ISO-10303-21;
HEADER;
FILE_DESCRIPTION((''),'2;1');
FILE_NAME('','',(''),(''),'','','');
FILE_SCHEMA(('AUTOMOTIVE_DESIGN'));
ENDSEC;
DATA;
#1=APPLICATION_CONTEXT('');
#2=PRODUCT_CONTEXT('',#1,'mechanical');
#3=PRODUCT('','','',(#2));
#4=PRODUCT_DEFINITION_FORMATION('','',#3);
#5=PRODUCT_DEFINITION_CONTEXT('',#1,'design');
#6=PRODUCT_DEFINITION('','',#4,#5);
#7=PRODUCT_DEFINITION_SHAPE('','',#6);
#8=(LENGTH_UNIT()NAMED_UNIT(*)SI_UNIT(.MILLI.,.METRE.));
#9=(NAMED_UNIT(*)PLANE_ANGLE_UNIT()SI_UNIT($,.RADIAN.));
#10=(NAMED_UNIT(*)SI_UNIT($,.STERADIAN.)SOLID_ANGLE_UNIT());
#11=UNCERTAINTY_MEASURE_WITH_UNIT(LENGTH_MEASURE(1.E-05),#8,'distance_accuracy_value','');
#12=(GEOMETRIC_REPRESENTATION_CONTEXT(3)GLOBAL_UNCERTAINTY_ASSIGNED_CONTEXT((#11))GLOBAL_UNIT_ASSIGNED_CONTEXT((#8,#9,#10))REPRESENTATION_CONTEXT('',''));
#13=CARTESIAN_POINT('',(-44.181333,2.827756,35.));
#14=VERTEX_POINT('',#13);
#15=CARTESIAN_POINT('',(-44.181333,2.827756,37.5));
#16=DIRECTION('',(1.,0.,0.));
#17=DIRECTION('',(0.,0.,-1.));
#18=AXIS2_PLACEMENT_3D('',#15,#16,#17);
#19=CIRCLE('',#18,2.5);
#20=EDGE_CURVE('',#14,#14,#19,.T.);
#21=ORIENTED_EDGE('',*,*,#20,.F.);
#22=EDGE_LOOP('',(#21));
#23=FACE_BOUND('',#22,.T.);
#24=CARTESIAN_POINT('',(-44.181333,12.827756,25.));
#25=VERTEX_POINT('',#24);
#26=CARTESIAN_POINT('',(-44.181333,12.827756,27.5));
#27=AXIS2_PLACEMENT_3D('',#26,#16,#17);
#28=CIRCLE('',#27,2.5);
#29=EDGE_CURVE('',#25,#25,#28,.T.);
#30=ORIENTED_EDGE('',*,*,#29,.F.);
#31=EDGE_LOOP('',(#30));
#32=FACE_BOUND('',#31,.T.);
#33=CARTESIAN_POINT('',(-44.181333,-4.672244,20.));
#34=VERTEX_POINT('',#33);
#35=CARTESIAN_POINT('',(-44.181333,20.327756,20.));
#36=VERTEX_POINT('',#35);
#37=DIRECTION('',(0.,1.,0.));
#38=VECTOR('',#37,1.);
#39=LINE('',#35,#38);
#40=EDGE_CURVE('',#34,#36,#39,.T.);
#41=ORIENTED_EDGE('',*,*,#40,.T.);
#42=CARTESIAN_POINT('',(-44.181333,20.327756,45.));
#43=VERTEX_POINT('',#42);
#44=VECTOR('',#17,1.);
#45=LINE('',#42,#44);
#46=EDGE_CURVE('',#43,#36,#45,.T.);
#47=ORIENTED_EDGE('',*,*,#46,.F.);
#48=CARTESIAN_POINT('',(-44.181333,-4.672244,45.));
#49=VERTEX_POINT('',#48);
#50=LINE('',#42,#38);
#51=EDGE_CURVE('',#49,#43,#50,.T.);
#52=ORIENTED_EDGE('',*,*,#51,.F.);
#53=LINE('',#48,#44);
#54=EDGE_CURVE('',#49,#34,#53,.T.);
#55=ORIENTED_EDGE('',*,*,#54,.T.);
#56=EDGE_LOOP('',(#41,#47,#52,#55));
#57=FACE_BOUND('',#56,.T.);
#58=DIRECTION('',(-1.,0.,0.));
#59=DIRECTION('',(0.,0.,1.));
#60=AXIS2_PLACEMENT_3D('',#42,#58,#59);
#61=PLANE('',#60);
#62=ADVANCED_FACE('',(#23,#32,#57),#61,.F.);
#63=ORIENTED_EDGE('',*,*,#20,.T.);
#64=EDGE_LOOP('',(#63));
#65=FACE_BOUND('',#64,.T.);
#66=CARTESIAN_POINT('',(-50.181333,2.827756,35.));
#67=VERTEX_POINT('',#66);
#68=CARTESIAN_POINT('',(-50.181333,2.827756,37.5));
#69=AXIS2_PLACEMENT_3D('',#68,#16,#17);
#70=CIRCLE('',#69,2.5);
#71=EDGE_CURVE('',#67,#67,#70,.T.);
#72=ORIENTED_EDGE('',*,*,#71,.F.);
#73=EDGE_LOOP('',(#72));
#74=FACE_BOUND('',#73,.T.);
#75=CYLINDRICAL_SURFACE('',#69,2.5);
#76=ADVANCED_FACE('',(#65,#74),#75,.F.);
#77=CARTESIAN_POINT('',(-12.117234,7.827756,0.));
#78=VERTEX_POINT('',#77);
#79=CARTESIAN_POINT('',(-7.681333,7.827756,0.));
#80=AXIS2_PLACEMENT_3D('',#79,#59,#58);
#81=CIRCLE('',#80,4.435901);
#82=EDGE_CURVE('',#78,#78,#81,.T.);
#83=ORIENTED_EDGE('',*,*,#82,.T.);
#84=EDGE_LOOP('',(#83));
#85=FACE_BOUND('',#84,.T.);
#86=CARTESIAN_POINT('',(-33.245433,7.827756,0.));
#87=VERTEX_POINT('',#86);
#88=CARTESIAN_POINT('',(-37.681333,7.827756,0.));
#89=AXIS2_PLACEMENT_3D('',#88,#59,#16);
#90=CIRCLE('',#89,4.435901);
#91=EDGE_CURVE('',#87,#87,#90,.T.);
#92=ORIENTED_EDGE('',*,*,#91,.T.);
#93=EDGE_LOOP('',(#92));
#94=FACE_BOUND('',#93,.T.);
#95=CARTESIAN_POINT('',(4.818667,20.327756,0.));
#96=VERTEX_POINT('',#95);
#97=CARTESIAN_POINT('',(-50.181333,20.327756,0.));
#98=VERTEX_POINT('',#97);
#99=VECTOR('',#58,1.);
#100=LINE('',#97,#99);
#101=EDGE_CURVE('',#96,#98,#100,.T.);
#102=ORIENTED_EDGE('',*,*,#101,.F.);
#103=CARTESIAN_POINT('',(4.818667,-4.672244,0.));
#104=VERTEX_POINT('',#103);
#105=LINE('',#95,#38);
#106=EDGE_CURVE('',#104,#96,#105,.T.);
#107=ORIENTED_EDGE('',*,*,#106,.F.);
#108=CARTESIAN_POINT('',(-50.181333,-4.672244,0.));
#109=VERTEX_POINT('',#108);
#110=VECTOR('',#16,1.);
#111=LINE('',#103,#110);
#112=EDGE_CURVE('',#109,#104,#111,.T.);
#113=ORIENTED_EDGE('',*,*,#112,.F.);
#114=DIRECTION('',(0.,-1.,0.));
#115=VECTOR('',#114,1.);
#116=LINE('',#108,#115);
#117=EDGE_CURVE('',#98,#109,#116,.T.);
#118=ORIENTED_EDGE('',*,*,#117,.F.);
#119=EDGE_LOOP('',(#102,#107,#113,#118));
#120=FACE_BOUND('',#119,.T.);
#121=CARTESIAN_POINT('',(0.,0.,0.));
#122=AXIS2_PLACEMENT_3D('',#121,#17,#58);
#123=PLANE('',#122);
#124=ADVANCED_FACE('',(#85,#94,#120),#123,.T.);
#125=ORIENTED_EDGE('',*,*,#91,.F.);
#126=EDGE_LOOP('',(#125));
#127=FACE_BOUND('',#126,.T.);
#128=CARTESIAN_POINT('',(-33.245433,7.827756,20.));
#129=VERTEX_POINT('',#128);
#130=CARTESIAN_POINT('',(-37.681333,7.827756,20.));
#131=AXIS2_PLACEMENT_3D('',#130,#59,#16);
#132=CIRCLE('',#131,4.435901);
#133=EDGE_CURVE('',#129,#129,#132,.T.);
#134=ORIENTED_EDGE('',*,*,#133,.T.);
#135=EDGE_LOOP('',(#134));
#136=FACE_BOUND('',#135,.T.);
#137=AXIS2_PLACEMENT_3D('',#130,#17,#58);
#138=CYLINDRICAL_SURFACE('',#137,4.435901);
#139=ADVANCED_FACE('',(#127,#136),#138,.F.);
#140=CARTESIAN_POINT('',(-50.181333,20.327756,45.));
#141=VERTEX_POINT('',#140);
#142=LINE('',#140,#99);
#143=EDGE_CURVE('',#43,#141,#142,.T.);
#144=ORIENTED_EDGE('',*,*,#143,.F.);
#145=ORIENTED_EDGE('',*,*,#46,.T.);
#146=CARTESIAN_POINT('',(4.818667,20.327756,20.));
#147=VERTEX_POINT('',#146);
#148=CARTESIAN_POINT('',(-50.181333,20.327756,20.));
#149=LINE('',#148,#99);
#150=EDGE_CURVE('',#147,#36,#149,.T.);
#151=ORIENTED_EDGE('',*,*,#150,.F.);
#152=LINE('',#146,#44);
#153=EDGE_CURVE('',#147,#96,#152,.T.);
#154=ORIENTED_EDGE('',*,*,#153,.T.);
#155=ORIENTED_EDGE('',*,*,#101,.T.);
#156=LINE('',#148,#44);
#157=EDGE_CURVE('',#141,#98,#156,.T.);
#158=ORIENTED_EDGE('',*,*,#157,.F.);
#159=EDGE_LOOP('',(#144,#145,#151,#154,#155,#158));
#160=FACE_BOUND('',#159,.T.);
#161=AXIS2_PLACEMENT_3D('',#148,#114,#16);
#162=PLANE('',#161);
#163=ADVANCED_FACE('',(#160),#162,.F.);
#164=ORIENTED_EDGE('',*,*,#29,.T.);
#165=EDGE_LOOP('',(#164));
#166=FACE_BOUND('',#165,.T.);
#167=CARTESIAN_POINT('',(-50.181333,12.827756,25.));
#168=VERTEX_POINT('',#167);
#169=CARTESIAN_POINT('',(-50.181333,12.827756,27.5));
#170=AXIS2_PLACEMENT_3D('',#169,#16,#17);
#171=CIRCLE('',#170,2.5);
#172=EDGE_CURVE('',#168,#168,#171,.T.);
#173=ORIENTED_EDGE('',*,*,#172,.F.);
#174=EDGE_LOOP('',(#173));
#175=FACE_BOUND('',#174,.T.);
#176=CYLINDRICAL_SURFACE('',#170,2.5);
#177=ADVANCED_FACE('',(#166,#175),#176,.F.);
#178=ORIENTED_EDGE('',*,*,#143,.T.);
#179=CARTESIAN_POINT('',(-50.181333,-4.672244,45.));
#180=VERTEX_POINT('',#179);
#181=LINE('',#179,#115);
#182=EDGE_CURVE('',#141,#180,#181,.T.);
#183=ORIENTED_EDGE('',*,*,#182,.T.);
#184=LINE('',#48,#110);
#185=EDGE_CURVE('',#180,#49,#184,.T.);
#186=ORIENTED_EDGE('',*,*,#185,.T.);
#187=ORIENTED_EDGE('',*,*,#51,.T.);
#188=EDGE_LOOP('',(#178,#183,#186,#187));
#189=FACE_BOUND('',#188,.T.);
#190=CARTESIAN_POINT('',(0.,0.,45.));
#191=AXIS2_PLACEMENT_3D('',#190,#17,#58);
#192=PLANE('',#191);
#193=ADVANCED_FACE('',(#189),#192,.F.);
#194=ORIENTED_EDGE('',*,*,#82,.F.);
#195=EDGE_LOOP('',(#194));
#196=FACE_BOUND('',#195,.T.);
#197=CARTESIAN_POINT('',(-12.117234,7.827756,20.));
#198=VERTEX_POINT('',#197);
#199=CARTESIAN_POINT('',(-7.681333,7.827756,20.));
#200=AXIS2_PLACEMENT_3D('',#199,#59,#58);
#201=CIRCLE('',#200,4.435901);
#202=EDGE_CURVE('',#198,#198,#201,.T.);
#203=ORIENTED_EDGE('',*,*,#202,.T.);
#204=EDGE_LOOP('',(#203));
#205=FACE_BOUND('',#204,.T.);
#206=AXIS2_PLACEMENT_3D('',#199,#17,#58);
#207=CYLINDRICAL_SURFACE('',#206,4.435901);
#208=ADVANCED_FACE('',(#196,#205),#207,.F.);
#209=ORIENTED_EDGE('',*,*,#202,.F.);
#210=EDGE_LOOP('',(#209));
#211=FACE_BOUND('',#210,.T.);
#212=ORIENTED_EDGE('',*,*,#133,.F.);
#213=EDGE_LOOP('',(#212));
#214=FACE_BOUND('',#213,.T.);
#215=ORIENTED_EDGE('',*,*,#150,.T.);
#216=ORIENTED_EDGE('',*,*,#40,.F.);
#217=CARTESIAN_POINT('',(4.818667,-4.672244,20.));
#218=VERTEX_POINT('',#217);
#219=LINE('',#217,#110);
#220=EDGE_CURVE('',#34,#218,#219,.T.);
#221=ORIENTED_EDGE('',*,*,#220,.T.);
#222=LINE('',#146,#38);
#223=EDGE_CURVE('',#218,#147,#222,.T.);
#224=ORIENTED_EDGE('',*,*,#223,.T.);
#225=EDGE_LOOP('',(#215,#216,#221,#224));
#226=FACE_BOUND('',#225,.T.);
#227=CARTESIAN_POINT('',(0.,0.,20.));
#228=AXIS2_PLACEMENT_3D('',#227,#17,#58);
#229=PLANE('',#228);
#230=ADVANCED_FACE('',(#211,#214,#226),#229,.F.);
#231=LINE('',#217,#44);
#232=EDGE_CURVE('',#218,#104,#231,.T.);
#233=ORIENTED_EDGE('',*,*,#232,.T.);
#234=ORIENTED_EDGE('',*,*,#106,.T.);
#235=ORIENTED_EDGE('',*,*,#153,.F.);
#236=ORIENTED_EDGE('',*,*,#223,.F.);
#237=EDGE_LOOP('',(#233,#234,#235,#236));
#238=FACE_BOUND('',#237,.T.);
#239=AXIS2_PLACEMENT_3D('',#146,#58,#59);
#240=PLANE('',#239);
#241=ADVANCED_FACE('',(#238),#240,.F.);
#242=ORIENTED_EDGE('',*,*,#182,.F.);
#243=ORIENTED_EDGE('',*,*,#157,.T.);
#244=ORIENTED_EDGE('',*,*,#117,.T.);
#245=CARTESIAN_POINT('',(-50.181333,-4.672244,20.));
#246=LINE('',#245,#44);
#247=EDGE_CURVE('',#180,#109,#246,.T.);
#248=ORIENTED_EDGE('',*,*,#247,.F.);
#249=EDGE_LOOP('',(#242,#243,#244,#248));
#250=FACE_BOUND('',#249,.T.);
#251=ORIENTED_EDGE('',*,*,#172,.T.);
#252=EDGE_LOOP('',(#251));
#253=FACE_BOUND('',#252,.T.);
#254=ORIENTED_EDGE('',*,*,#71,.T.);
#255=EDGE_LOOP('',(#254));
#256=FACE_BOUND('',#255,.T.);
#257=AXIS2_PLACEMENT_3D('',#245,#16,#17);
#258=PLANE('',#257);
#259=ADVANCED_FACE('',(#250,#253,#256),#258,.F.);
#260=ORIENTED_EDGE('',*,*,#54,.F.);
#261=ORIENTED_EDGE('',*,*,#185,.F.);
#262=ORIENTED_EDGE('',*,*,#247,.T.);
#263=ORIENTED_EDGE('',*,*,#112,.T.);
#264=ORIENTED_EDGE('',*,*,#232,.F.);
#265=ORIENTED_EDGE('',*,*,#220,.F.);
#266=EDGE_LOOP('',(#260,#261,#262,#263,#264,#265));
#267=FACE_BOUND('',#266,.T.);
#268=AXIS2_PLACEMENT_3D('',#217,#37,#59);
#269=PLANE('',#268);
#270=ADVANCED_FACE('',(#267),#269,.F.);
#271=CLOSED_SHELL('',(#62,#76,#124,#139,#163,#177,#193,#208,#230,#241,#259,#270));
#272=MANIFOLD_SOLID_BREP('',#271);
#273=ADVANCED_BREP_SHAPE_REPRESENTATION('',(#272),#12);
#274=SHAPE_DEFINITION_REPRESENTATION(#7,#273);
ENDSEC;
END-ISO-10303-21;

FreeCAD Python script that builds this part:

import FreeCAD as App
import Part
import Sketcher

doc = App.newDocument("Part")
body = doc.addObject("PartDesign::Body", "Body")

# Sketch on XY plane
sketch1 = doc.addObject("Sketcher::SketchObject", "Sketch")
body.addObject(sketch1)
sketch1.AttachmentSupport = (doc.XY_Plane, [""])
sketch1.MapMode = "FlatFace"
sketch1.addGeometry(Part.LineSegment(App.Vector(-50.2, 20.3, 0), App.Vector(-50.2, -4.7, 0)), False)
sketch1.addGeometry(Part.LineSegment(App.Vector(-50.2, -4.7, 0), App.Vector(4.8, -4.7, 0)), False)
sketch1.addGeometry(Part.LineSegment(App.Vector(4.8, -4.7, 0), App.Vector(4.8, 20.3, 0)), False)
sketch1.addGeometry(Part.LineSegment(App.Vector(4.8, 20.3, 0), App.Vector(-50.2, 20.3, 0)), False)
sketch1.addGeometry(Part.Circle(App.Vector(-37.7, 7.8, 0), App.Vector(0, 0, 1), 4.4), False)
sketch1.addGeometry(Part.Circle(App.Vector(-7.7, 7.8, 0), App.Vector(0, 0, 1), 4.4), False)
sketch1.addConstraint(Sketcher.Constraint("Coincident", 0, 2, 1, 1))
sketch1.addConstraint(Sketcher.Constraint("Coincident", 1, 2, 2, 1))
sketch1.addConstraint(Sketcher.Constraint("Coincident", 2, 2, 3, 1))
sketch1.addConstraint(Sketcher.Constraint("Coincident", 3, 2, 0, 1))
sketch1.addConstraint(Sketcher.Constraint("Vertical", 0))
sketch1.addConstraint(Sketcher.Constraint("Horizontal", 1))
sketch1.addConstraint(Sketcher.Constraint("Vertical", 2))
sketch1.addConstraint(Sketcher.Constraint("Horizontal", 3))
sketch1.addConstraint(Sketcher.Constraint("Equal", 4, 5))
sketch1.addConstraint(Sketcher.Constraint("Horizontal", 4, 3, 5, 3))
sketch1.addConstraint(Sketcher.Constraint("DistanceX", 1, 1, 1, 2, 55.0))
sketch1.addConstraint(Sketcher.Constraint("DistanceY", 0, 2, 0, 1, 25.0))
sketch1.addConstraint(Sketcher.Constraint("DistanceX", 4, 3, 5, 3, 30.0))
sketch1.addConstraint(Sketcher.Constraint("Diameter", 4, 8.871801))
sketch1.addConstraint(Sketcher.Constraint("DistanceX", 0, 2, 4, 3, 12.5))
sketch1.addConstraint(Sketcher.Constraint("DistanceY", 0, 2, 4, 3, 12.5))
sketch1.addConstraint(Sketcher.Constraint("DistanceX", 4, 3, -1, 1, 37.681333))
sketch1.addConstraint(Sketcher.Constraint("DistanceY", -1, 1, 4, 3, 7.827756))
pad1 = doc.addObject("PartDesign::Pad", "Pad")
body.addObject(pad1)
pad1.Profile = sketch1
pad1.Length = 20

# Sketch on XY plane
sketch2 = doc.addObject("Sketcher::SketchObject", "Sketch001")
body.addObject(sketch2)
sketch2.AttachmentSupport = (doc.XY_Plane, [""])
sketch2.MapMode = "FlatFace"
sketch2.AttachmentOffset = App.Placement(App.Vector(0, 0, 20), App.Rotation())
sketch2.addGeometry(Part.LineSegment(App.Vector(-50, 20, 0), App.Vector(-50, -5, 0)), False)
sketch2.addGeometry(Part.LineSegment(App.Vector(-50, -5, 0), App.Vector(-44, -5, 0)), False)
sketch2.addGeometry(Part.LineSegment(App.Vector(-44, -5, 0), App.Vector(-44, 20, 0)), False)
sketch2.addGeometry(Part.LineSegment(App.Vector(-44, 20, 0), App.Vector(-50, 20, 0)), False)
sketch2.addConstraint(Sketcher.Constraint("Coincident", 0, 2, 1, 1))
sketch2.addConstraint(Sketcher.Constraint("Coincident", 1, 2, 2, 1))
sketch2.addConstraint(Sketcher.Constraint("Coincident", 2, 2, 3, 1))
sketch2.addConstraint(Sketcher.Constraint("Coincident", 3, 2, 0, 1))
sketch2.addConstraint(Sketcher.Constraint("Vertical", 0))
sketch2.addConstraint(Sketcher.Constraint("Horizontal", 1))
sketch2.addConstraint(Sketcher.Constraint("Vertical", 2))
sketch2.addConstraint(Sketcher.Constraint("Horizontal", 3))
sketch2.addConstraint(Sketcher.Constraint("DistanceX", 1, 1, 1, 2, 6.0))
sketch2.addConstraint(Sketcher.Constraint("DistanceY", 0, 2, 0, 1, 25.0))
sketch2.addConstraint(Sketcher.Constraint("DistanceX", 0, 2, -1, 1, 50.181333))
sketch2.addConstraint(Sketcher.Constraint("DistanceY", 0, 2, -1, 1, 4.672244))
pad2 = doc.addObject("PartDesign::Pad", "Pad001")
body.addObject(pad2)
pad2.Profile = sketch2
pad2.Length = 25

# Sketch on YZ plane
sketch3 = doc.addObject("Sketcher::SketchObject", "Sketch002")
body.addObject(sketch3)
sketch3.AttachmentSupport = (doc.YZ_Plane, [""])
sketch3.MapMode = "FlatFace"
sketch3.AttachmentOffset = App.Placement(App.Vector(0, 0, -44.181333), App.Rotation())
sketch3.addGeometry(Part.Circle(App.Vector(2.8, 37.5, 0), App.Vector(0, 0, 1), 2.5), False)
sketch3.addGeometry(Part.Circle(App.Vector(12.8, 27.5, 0), App.Vector(0, 0, 1), 2.5), False)
sketch3.addConstraint(Sketcher.Constraint("Equal", 0, 1))
sketch3.addConstraint(Sketcher.Constraint("Diameter", 0, 5.0))
sketch3.addConstraint(Sketcher.Constraint("DistanceX", 0, 3, 1, 3, 10.0))
sketch3.addConstraint(Sketcher.Constraint("DistanceY", 1, 3, 0, 3, 10.0))
sketch3.addConstraint(Sketcher.Constraint("DistanceY", -1, 1, 0, 3, 37.5))
sketch3.addConstraint(Sketcher.Constraint("DistanceX", -1, 1, 0, 3, 2.827756))
pocket1 = doc.addObject("PartDesign::Pocket", "Pocket")
body.addObject(pocket1)
pocket1.Profile = sketch3
pocket1.Type = "ThroughAll"

doc.recompute()
